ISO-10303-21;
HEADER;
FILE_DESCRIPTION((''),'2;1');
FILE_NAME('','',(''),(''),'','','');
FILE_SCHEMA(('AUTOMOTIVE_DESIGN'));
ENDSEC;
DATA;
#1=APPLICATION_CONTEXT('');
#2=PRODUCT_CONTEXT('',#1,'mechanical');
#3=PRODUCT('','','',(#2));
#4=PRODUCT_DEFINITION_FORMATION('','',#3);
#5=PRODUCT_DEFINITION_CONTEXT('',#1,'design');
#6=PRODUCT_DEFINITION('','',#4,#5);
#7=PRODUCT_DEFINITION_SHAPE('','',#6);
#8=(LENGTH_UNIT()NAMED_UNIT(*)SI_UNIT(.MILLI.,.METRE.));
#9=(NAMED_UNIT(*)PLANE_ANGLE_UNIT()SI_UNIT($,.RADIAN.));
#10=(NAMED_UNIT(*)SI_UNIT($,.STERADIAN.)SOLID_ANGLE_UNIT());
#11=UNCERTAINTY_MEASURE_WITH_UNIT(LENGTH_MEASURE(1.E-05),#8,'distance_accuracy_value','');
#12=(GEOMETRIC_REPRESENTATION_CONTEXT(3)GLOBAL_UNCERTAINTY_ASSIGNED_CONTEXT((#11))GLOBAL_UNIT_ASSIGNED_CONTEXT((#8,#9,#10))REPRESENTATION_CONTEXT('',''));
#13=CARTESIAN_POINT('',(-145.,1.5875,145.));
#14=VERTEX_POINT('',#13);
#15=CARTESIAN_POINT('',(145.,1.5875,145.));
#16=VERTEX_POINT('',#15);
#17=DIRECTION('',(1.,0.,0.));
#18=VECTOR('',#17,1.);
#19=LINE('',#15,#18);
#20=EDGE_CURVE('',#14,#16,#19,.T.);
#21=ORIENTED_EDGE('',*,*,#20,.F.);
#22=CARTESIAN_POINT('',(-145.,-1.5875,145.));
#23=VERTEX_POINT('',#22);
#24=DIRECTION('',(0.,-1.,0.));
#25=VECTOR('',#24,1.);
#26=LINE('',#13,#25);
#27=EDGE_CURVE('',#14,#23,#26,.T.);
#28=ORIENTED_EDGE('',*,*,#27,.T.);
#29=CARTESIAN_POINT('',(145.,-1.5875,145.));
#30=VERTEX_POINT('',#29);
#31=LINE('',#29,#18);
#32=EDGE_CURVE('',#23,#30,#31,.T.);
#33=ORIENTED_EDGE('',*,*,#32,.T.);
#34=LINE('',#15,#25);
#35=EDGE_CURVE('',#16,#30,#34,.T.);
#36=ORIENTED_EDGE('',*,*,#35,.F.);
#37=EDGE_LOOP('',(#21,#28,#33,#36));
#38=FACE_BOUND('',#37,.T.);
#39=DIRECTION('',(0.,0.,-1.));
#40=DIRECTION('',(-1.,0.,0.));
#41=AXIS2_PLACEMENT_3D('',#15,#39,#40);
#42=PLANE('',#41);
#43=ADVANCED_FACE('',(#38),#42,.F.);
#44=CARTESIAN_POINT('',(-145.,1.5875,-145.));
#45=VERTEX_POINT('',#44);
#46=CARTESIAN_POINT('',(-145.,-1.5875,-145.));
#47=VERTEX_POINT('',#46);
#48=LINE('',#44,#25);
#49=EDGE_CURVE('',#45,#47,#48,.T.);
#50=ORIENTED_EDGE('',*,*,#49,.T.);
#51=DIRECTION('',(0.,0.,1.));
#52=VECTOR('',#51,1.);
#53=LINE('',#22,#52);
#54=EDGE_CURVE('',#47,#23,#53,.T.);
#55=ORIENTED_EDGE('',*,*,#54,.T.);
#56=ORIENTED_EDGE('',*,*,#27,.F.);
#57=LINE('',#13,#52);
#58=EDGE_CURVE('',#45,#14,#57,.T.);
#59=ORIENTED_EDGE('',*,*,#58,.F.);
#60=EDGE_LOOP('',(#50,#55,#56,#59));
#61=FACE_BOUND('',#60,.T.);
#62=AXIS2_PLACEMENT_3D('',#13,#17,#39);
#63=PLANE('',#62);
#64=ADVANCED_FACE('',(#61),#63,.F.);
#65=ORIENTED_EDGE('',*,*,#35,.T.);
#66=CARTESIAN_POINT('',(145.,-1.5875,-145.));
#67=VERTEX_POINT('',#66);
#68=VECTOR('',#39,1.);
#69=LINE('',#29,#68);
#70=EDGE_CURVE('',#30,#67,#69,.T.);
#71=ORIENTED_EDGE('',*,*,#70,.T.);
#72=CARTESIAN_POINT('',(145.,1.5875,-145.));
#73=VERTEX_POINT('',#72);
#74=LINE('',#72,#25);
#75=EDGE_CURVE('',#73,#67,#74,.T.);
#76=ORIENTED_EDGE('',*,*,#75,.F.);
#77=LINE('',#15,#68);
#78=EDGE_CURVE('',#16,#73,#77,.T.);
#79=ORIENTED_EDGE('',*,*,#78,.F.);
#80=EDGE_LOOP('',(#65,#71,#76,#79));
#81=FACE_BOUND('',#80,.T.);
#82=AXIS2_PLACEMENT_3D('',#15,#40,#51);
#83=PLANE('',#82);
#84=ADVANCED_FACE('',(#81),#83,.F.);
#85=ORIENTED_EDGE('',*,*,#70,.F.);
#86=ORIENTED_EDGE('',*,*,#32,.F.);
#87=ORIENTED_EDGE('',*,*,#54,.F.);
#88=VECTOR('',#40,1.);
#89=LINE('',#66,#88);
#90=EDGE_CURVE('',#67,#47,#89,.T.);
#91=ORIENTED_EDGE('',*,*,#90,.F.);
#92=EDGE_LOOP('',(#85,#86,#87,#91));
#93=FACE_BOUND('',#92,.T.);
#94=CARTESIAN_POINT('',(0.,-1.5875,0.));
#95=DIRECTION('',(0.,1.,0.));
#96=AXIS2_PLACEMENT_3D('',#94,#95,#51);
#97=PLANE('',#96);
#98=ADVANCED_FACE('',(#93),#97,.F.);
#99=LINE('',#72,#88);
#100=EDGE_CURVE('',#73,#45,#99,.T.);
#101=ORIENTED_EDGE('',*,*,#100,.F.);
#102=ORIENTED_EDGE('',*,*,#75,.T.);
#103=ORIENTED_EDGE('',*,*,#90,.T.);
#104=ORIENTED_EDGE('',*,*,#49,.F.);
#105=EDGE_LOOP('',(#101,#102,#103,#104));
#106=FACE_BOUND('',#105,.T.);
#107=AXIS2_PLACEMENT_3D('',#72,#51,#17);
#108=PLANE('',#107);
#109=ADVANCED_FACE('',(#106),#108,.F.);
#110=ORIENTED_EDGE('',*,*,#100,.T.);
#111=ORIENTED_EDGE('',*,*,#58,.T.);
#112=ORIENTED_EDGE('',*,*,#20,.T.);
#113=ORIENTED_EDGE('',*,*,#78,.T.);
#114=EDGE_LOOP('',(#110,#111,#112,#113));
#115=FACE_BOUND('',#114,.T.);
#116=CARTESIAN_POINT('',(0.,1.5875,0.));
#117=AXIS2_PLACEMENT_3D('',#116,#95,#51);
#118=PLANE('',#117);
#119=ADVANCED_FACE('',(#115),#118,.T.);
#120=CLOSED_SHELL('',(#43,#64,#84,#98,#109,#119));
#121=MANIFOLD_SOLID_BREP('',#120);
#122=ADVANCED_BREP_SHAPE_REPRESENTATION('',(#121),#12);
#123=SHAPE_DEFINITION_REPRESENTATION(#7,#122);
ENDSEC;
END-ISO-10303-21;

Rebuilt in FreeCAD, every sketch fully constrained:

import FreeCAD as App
import Part
import Sketcher

V = App.Vector


def add_polygon(sketch, points):
    """Adds a closed chain of lines whose ends are joined by coincident constraints."""
    first, n = sketch.GeometryCount, len(points)
    for a, b in zip(points, points[1:] + points[:1]):
        sketch.addGeometry(Part.LineSegment(App.Vector(*a, 0), App.Vector(*b, 0)), False)
    for i in range(n):
        sketch.addConstraint(Sketcher.Constraint("Coincident", first + i, 2, first + (i + 1) % n, 1))

doc = App.newDocument("Part")
params = doc.addObject("Spreadsheet::Sheet", "Params")
for row, (alias, value) in enumerate([
    ("sketch1_width", "290 mm"),
    ("pad1_length", "3.175 mm"),
], start=1):
    params.set(f"A{row}", alias)
    params.set(f"B{row}", "=" + value)
    params.setAlias(f"B{row}", alias)

body = doc.addObject("PartDesign::Body", "Body")

# Sketch on XZ plane
sketch1 = doc.addObject("Sketcher::SketchObject", "Sketch")
body.addObject(sketch1)
sketch1.AttachmentSupport = (doc.XZ_Plane, [""])
sketch1.MapMode = "FlatFace"
add_polygon(sketch1, [(-145, -145), (-145, 145), (145, 145), (145, -145)])  # lines 0-3
sketch1.addConstraint(Sketcher.Constraint("Vertical", 0))
sketch1.addConstraint(Sketcher.Constraint("Horizontal", 1))
sketch1.addConstraint(Sketcher.Constraint("Vertical", 2))
sketch1.addConstraint(Sketcher.Constraint("Horizontal", 3))
sketch1.addConstraint(Sketcher.Constraint("Symmetric", 0, 2, 2, 2, -1, 1))
sketch1.addConstraint(Sketcher.Constraint("Equal", 3, 0))
sketch1.addConstraint(Sketcher.Constraint("DistanceX", 1, 1, 1, 2, 290.0))
sketch1.setExpression("Constraints[10]", "Params.sketch1_width")
pad1 = doc.addObject("PartDesign::Pad", "Pad")
body.addObject(pad1)
pad1.Profile = sketch1
pad1.setExpression("Length", "Params.pad1_length")
pad1.Midplane = True

doc.recompute()
